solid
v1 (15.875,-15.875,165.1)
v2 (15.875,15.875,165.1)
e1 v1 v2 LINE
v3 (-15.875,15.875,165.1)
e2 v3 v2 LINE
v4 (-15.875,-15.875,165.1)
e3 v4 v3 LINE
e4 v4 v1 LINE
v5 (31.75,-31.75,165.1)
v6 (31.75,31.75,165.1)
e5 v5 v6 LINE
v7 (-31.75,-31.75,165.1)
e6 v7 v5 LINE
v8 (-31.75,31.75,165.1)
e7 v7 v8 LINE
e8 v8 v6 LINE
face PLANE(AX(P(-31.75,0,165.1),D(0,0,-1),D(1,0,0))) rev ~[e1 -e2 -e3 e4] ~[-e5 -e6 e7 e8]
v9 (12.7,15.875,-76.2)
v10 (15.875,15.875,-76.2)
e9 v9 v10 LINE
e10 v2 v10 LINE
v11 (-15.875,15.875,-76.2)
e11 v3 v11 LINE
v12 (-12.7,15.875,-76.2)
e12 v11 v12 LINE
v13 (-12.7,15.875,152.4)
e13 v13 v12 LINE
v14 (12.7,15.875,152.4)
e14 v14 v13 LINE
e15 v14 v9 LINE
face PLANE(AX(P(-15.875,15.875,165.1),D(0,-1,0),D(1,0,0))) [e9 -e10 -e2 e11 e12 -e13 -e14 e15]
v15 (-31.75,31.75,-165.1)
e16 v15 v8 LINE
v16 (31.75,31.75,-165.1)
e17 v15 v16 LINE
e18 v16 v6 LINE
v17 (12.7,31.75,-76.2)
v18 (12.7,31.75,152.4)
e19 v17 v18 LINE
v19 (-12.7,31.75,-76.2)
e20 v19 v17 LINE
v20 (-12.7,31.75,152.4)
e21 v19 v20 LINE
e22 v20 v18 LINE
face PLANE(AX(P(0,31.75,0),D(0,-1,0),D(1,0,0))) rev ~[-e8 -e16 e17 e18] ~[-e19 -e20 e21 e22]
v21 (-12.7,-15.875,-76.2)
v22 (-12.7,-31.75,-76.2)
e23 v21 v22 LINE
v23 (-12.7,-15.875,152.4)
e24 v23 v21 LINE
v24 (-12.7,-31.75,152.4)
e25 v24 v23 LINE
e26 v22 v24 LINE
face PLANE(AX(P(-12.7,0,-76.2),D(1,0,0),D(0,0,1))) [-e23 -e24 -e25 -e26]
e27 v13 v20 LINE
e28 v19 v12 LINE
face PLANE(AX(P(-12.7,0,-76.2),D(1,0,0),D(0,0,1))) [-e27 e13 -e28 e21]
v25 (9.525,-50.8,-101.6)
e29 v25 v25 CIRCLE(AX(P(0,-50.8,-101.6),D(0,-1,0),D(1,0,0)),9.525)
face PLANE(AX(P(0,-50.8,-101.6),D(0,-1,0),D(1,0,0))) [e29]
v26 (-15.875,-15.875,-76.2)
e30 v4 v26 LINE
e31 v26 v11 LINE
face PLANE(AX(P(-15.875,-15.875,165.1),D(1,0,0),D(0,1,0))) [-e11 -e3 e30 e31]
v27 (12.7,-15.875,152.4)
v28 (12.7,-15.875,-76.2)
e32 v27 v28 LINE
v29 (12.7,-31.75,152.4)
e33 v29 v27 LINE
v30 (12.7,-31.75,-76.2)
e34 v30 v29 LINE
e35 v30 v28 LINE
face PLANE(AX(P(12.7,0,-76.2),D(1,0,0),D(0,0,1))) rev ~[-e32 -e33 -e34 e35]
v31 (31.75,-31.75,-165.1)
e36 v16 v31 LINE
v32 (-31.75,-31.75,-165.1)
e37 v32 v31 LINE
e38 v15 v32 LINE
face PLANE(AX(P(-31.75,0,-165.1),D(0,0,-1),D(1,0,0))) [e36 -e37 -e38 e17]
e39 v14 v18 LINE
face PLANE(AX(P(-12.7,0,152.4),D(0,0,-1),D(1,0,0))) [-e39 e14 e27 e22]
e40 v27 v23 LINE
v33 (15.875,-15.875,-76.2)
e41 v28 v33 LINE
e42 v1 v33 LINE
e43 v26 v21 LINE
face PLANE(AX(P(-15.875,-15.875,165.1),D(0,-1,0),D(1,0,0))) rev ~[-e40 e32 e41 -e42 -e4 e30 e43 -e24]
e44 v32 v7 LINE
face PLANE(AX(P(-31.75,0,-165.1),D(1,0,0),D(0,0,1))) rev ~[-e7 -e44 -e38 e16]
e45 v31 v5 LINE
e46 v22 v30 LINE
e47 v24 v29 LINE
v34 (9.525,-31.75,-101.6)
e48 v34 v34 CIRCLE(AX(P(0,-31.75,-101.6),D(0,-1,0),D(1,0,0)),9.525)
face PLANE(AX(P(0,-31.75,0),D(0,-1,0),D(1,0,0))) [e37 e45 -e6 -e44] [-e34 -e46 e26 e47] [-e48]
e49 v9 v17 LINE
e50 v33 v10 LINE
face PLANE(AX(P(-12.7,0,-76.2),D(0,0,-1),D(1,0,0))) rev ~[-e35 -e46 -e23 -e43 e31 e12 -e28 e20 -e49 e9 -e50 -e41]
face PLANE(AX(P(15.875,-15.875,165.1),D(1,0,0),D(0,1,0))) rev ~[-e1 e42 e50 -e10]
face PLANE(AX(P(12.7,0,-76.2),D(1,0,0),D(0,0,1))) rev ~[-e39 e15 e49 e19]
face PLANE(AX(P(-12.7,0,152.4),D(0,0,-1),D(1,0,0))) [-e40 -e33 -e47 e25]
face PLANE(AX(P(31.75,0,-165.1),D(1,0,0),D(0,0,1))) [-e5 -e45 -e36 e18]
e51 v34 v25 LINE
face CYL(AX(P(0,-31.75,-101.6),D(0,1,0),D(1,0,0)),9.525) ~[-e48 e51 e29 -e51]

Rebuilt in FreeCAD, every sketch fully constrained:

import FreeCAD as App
import Part
import Sketcher
Q = App.Units.Quantity


def add_polygon(sketch, points):
    """Adds a closed chain of lines whose ends are joined by coincident constraints."""
    first, n = sketch.GeometryCount, len(points)
    for a, b in zip(points, points[1:] + points[:1]):
        sketch.addGeometry(Part.LineSegment(App.Vector(*a, 0), App.Vector(*b, 0)), False)
    for i in range(n):
        sketch.addConstraint(Sketcher.Constraint("Coincident", first + i, 2, first + (i + 1) % n, 1))

doc = App.newDocument("Part")
body = doc.addObject("PartDesign::Body", "Body")

sketch1 = body.newObject("Sketcher::SketchObject", "Sketch")
sketch1.AttachmentSupport = (doc.getObject("XZ_Plane"), [""])
sketch1.MapMode = "FlatFace"
add_polygon(sketch1, [(-32, 165), (-32, -165), (32, -165), (32, 165)])
add_polygon(sketch1, [(13, -76), (-13, -76), (-13, 152), (13, 152)])
sketch1.addConstraint([
    Sketcher.Constraint("Vertical", 0),
    Sketcher.Constraint("Horizontal", 1),
    Sketcher.Constraint("Vertical", 2),
    Sketcher.Constraint("Horizontal", 3),
    Sketcher.Constraint("Horizontal", 4),
    Sketcher.Constraint("Vertical", 5),
    Sketcher.Constraint("Horizontal", 6),
    Sketcher.Constraint("Vertical", 7),
    Sketcher.Constraint("Symmetric", 0, 2, 2, 2, -1, 1),
    Sketcher.Constraint("DistanceX", 4, 2, 4, 1, Q("1 in")),
    Sketcher.Constraint("DistanceY", 0, 2, 0, 1, Q("13 in")),
    Sketcher.Constraint("DistanceY", 5, 1, 5, 2, Q("9 in")),
    Sketcher.Constraint("DistanceX", 1, 1, 1, 2, Q("2.5 in")),
    Sketcher.Constraint("DistanceY", 4, 2, -1, 1, Q("3 in")),
    Sketcher.Constraint("DistanceX", 4, 2, -1, 1, Q("0.5 in")),
])
pad1 = body.newObject("PartDesign::Pad", "Pad")
pad1.Profile = sketch1
pad1.Length = Q("2.5 in")
pad1.Midplane = True

sketch2 = body.newObject("Sketcher::SketchObject", "Sketch001")
sketch2.AttachmentSupport = (doc.getObject("XY_Plane"), [""])
sketch2.MapMode = "FlatFace"
sketch2.AttachmentOffset = App.Placement(App.Vector(0, 0, 6.5 * 25.4), App.Rotation())
add_polygon(sketch2, [(-16, 16), (-16, -16), (16, -16), (16, 16)])
sketch2.addConstraint([
    Sketcher.Constraint("Vertical", 0),
    Sketcher.Constraint("Horizontal", 1),
    Sketcher.Constraint("Vertical", 2),
    Sketcher.Constraint("Horizontal", 3),
    Sketcher.Constraint("Symmetric", 0, 2, 2, 2, -1, 1),
    Sketcher.Constraint("Equal", 3, 0),
    Sketcher.Constraint("DistanceX", 1, 1, 1, 2, Q("1.25 in")),
])
pocket1 = body.newObject("PartDesign::Pocket", "Pocket")
pocket1.Profile = sketch2
pocket1.Length = Q("9.5 in")

sketch3 = body.newObject("Sketcher::SketchObject", "Sketch002")
sketch3.AttachmentSupport = (doc.getObject("XZ_Plane"), [""])
sketch3.MapMode = "FlatFace"
sketch3.AttachmentOffset = App.Placement(App.Vector(0, 0, 1.25 * 25.4), App.Rotation())
sketch3.addGeometry(Part.Circle(App.Vector(0, -102, 0), App.Vector(0, 0, 1), 10), False)
sketch3.addConstraint([
    Sketcher.Constraint("PointOnObject", 0, 3, -2),
    Sketcher.Constraint("Diameter", 0, Q("0.75 in")),
    Sketcher.Constraint("DistanceY", 0, 3, -1, 1, Q("4 in")),
])
pad2 = body.newObject("PartDesign::Pad", "Pad001")
pad2.Profile = sketch3
pad2.Length = Q("0.75 in")

doc.recompute()
